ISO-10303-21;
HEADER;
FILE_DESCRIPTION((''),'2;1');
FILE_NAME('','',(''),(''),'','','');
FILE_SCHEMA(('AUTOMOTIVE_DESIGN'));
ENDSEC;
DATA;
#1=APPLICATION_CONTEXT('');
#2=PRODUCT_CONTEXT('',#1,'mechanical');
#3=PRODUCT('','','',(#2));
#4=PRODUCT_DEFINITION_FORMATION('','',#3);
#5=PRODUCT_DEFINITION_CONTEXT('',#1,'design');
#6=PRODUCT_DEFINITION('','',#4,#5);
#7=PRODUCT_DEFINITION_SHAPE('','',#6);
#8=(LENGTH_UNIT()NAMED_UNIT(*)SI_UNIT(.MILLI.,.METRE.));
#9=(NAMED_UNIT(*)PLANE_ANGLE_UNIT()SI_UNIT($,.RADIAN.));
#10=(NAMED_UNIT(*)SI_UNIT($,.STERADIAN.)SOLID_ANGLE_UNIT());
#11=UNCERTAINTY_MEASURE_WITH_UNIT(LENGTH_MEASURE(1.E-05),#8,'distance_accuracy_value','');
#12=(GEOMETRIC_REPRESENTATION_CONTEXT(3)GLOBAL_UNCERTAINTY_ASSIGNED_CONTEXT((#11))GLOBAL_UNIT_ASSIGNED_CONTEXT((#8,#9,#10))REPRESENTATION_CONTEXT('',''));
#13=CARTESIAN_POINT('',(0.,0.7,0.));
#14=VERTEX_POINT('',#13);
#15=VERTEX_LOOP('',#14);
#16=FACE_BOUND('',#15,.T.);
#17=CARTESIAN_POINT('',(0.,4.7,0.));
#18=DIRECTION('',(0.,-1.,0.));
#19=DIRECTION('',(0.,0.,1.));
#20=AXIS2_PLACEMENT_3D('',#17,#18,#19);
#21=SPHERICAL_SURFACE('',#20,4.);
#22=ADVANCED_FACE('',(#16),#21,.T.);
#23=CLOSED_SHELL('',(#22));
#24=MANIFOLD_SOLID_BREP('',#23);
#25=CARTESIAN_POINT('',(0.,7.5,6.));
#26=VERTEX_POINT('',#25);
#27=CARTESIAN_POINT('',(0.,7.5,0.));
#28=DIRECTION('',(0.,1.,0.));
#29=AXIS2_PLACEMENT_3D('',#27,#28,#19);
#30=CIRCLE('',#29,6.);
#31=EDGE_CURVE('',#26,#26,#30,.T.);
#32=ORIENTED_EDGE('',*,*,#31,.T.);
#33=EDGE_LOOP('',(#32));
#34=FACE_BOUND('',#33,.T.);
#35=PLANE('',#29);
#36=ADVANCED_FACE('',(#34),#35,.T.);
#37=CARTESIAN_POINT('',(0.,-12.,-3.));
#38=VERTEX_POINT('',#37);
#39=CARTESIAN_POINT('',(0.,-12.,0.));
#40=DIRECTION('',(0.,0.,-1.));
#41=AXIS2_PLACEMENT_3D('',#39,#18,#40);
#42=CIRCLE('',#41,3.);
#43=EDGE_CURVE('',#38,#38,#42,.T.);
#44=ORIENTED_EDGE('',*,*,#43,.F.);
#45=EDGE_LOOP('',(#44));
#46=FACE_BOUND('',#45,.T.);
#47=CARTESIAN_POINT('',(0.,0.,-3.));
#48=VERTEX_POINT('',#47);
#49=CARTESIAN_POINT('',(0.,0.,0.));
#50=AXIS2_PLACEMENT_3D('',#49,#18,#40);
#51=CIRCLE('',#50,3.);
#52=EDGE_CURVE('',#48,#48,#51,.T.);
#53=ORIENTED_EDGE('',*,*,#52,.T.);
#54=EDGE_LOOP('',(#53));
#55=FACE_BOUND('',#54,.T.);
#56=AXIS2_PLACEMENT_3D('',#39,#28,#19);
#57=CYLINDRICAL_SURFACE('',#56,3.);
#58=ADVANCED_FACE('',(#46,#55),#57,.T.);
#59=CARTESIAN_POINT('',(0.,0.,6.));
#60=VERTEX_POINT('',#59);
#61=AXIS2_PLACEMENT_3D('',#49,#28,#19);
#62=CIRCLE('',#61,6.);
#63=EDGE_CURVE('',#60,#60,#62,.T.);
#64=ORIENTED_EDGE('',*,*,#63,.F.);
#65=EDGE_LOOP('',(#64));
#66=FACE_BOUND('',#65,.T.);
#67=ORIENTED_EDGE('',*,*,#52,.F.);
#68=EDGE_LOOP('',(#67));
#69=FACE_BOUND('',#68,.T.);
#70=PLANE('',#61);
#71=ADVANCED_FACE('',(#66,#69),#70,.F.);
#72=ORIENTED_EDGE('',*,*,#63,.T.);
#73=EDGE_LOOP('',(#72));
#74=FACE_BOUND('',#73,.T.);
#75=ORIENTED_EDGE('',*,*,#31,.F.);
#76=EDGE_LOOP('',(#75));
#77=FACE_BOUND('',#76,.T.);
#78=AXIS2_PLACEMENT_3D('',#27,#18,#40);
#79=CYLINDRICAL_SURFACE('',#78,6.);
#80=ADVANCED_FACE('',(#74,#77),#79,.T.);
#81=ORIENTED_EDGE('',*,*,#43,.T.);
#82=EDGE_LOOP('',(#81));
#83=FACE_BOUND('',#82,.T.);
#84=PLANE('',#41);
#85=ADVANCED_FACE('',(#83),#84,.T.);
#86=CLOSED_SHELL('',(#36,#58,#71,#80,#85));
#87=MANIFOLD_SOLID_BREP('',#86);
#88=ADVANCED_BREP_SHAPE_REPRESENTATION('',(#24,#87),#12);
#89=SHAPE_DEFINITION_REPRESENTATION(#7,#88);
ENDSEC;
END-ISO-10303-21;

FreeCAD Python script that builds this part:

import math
import FreeCAD as App
import Part
import Sketcher

doc = App.newDocument("Part")
body = doc.addObject("PartDesign::Body", "Body")

# Sketch on XZ plane
sketch1 = body.newObject("Sketcher::SketchObject", "Sketch")
sketch1.AttachmentSupport = (doc.getObject("XZ_Plane"), [""])
sketch1.MapMode = "FlatFace"
sketch1.addGeometry(Part.Circle(App.Vector(0, 0, 0), App.Vector(0, 0, 1), 6), False)
sketch1.addConstraint(Sketcher.Constraint("Coincident", 0, 3, -1, 1))
sketch1.addConstraint(Sketcher.Constraint("Diameter", 0, 12.0))
pad1 = body.newObject("PartDesign::Pad", "Pad")
pad1.Profile = sketch1
pad1.Length = 7.5
pad1.Reversed = True

# Sketch on XZ plane
sketch2 = body.newObject("Sketcher::SketchObject", "Sketch001")
sketch2.AttachmentSupport = (doc.getObject("XZ_Plane"), [""])
sketch2.MapMode = "FlatFace"
sketch2.addGeometry(Part.Circle(App.Vector(0, 0, 0), App.Vector(0, 0, 1), 3), False)
sketch2.addConstraint(Sketcher.Constraint("Coincident", 0, 3, -1, 1))
sketch2.addConstraint(Sketcher.Constraint("Diameter", 0, 6.0))
pad2 = body.newObject("PartDesign::Pad", "Pad001")
pad2.Profile = sketch2
pad2.Length = 12
body2 = doc.addObject("PartDesign::Body", "Body001")

# Sketch on YZ plane
sketch3 = body2.newObject("Sketcher::SketchObject", "Sketch002")
sketch3.AttachmentSupport = (doc.getObject("YZ_Plane001"), [""])
sketch3.MapMode = "FlatFace"
sketch3.addGeometry(Part.LineSegment(App.Vector(0.7, 0, 0), App.Vector(8.7, 0, 0)), False)
sketch3.addGeometry(Part.ArcOfCircle(Part.Circle(App.Vector(4.7, 0, 0), App.Vector(0, 0, 1), 4), math.radians(0), math.radians(180)), False)
sketch3.addConstraint(Sketcher.Constraint("Coincident", 0, 1, 1, 2))
sketch3.addConstraint(Sketcher.Constraint("Coincident", 1, 1, 0, 2))
sketch3.addConstraint(Sketcher.Constraint("Horizontal", 0))
sketch3.addConstraint(Sketcher.Constraint("PointOnObject", 1, 3, -1))
sketch3.addConstraint(Sketcher.Constraint("PointOnObject", 0, 1, -1))
sketch3.addConstraint(Sketcher.Constraint("Radius", 1, 4.0))
sketch3.addConstraint(Sketcher.Constraint("DistanceX", -1, 1, 1, 3, 4.7))
revolution = body2.newObject("PartDesign::Revolution", "Revolution")
revolution.Profile = sketch3
revolution.ReferenceAxis = (sketch3, ["H_Axis"])
revolution.Angle = 360

doc.recompute()
